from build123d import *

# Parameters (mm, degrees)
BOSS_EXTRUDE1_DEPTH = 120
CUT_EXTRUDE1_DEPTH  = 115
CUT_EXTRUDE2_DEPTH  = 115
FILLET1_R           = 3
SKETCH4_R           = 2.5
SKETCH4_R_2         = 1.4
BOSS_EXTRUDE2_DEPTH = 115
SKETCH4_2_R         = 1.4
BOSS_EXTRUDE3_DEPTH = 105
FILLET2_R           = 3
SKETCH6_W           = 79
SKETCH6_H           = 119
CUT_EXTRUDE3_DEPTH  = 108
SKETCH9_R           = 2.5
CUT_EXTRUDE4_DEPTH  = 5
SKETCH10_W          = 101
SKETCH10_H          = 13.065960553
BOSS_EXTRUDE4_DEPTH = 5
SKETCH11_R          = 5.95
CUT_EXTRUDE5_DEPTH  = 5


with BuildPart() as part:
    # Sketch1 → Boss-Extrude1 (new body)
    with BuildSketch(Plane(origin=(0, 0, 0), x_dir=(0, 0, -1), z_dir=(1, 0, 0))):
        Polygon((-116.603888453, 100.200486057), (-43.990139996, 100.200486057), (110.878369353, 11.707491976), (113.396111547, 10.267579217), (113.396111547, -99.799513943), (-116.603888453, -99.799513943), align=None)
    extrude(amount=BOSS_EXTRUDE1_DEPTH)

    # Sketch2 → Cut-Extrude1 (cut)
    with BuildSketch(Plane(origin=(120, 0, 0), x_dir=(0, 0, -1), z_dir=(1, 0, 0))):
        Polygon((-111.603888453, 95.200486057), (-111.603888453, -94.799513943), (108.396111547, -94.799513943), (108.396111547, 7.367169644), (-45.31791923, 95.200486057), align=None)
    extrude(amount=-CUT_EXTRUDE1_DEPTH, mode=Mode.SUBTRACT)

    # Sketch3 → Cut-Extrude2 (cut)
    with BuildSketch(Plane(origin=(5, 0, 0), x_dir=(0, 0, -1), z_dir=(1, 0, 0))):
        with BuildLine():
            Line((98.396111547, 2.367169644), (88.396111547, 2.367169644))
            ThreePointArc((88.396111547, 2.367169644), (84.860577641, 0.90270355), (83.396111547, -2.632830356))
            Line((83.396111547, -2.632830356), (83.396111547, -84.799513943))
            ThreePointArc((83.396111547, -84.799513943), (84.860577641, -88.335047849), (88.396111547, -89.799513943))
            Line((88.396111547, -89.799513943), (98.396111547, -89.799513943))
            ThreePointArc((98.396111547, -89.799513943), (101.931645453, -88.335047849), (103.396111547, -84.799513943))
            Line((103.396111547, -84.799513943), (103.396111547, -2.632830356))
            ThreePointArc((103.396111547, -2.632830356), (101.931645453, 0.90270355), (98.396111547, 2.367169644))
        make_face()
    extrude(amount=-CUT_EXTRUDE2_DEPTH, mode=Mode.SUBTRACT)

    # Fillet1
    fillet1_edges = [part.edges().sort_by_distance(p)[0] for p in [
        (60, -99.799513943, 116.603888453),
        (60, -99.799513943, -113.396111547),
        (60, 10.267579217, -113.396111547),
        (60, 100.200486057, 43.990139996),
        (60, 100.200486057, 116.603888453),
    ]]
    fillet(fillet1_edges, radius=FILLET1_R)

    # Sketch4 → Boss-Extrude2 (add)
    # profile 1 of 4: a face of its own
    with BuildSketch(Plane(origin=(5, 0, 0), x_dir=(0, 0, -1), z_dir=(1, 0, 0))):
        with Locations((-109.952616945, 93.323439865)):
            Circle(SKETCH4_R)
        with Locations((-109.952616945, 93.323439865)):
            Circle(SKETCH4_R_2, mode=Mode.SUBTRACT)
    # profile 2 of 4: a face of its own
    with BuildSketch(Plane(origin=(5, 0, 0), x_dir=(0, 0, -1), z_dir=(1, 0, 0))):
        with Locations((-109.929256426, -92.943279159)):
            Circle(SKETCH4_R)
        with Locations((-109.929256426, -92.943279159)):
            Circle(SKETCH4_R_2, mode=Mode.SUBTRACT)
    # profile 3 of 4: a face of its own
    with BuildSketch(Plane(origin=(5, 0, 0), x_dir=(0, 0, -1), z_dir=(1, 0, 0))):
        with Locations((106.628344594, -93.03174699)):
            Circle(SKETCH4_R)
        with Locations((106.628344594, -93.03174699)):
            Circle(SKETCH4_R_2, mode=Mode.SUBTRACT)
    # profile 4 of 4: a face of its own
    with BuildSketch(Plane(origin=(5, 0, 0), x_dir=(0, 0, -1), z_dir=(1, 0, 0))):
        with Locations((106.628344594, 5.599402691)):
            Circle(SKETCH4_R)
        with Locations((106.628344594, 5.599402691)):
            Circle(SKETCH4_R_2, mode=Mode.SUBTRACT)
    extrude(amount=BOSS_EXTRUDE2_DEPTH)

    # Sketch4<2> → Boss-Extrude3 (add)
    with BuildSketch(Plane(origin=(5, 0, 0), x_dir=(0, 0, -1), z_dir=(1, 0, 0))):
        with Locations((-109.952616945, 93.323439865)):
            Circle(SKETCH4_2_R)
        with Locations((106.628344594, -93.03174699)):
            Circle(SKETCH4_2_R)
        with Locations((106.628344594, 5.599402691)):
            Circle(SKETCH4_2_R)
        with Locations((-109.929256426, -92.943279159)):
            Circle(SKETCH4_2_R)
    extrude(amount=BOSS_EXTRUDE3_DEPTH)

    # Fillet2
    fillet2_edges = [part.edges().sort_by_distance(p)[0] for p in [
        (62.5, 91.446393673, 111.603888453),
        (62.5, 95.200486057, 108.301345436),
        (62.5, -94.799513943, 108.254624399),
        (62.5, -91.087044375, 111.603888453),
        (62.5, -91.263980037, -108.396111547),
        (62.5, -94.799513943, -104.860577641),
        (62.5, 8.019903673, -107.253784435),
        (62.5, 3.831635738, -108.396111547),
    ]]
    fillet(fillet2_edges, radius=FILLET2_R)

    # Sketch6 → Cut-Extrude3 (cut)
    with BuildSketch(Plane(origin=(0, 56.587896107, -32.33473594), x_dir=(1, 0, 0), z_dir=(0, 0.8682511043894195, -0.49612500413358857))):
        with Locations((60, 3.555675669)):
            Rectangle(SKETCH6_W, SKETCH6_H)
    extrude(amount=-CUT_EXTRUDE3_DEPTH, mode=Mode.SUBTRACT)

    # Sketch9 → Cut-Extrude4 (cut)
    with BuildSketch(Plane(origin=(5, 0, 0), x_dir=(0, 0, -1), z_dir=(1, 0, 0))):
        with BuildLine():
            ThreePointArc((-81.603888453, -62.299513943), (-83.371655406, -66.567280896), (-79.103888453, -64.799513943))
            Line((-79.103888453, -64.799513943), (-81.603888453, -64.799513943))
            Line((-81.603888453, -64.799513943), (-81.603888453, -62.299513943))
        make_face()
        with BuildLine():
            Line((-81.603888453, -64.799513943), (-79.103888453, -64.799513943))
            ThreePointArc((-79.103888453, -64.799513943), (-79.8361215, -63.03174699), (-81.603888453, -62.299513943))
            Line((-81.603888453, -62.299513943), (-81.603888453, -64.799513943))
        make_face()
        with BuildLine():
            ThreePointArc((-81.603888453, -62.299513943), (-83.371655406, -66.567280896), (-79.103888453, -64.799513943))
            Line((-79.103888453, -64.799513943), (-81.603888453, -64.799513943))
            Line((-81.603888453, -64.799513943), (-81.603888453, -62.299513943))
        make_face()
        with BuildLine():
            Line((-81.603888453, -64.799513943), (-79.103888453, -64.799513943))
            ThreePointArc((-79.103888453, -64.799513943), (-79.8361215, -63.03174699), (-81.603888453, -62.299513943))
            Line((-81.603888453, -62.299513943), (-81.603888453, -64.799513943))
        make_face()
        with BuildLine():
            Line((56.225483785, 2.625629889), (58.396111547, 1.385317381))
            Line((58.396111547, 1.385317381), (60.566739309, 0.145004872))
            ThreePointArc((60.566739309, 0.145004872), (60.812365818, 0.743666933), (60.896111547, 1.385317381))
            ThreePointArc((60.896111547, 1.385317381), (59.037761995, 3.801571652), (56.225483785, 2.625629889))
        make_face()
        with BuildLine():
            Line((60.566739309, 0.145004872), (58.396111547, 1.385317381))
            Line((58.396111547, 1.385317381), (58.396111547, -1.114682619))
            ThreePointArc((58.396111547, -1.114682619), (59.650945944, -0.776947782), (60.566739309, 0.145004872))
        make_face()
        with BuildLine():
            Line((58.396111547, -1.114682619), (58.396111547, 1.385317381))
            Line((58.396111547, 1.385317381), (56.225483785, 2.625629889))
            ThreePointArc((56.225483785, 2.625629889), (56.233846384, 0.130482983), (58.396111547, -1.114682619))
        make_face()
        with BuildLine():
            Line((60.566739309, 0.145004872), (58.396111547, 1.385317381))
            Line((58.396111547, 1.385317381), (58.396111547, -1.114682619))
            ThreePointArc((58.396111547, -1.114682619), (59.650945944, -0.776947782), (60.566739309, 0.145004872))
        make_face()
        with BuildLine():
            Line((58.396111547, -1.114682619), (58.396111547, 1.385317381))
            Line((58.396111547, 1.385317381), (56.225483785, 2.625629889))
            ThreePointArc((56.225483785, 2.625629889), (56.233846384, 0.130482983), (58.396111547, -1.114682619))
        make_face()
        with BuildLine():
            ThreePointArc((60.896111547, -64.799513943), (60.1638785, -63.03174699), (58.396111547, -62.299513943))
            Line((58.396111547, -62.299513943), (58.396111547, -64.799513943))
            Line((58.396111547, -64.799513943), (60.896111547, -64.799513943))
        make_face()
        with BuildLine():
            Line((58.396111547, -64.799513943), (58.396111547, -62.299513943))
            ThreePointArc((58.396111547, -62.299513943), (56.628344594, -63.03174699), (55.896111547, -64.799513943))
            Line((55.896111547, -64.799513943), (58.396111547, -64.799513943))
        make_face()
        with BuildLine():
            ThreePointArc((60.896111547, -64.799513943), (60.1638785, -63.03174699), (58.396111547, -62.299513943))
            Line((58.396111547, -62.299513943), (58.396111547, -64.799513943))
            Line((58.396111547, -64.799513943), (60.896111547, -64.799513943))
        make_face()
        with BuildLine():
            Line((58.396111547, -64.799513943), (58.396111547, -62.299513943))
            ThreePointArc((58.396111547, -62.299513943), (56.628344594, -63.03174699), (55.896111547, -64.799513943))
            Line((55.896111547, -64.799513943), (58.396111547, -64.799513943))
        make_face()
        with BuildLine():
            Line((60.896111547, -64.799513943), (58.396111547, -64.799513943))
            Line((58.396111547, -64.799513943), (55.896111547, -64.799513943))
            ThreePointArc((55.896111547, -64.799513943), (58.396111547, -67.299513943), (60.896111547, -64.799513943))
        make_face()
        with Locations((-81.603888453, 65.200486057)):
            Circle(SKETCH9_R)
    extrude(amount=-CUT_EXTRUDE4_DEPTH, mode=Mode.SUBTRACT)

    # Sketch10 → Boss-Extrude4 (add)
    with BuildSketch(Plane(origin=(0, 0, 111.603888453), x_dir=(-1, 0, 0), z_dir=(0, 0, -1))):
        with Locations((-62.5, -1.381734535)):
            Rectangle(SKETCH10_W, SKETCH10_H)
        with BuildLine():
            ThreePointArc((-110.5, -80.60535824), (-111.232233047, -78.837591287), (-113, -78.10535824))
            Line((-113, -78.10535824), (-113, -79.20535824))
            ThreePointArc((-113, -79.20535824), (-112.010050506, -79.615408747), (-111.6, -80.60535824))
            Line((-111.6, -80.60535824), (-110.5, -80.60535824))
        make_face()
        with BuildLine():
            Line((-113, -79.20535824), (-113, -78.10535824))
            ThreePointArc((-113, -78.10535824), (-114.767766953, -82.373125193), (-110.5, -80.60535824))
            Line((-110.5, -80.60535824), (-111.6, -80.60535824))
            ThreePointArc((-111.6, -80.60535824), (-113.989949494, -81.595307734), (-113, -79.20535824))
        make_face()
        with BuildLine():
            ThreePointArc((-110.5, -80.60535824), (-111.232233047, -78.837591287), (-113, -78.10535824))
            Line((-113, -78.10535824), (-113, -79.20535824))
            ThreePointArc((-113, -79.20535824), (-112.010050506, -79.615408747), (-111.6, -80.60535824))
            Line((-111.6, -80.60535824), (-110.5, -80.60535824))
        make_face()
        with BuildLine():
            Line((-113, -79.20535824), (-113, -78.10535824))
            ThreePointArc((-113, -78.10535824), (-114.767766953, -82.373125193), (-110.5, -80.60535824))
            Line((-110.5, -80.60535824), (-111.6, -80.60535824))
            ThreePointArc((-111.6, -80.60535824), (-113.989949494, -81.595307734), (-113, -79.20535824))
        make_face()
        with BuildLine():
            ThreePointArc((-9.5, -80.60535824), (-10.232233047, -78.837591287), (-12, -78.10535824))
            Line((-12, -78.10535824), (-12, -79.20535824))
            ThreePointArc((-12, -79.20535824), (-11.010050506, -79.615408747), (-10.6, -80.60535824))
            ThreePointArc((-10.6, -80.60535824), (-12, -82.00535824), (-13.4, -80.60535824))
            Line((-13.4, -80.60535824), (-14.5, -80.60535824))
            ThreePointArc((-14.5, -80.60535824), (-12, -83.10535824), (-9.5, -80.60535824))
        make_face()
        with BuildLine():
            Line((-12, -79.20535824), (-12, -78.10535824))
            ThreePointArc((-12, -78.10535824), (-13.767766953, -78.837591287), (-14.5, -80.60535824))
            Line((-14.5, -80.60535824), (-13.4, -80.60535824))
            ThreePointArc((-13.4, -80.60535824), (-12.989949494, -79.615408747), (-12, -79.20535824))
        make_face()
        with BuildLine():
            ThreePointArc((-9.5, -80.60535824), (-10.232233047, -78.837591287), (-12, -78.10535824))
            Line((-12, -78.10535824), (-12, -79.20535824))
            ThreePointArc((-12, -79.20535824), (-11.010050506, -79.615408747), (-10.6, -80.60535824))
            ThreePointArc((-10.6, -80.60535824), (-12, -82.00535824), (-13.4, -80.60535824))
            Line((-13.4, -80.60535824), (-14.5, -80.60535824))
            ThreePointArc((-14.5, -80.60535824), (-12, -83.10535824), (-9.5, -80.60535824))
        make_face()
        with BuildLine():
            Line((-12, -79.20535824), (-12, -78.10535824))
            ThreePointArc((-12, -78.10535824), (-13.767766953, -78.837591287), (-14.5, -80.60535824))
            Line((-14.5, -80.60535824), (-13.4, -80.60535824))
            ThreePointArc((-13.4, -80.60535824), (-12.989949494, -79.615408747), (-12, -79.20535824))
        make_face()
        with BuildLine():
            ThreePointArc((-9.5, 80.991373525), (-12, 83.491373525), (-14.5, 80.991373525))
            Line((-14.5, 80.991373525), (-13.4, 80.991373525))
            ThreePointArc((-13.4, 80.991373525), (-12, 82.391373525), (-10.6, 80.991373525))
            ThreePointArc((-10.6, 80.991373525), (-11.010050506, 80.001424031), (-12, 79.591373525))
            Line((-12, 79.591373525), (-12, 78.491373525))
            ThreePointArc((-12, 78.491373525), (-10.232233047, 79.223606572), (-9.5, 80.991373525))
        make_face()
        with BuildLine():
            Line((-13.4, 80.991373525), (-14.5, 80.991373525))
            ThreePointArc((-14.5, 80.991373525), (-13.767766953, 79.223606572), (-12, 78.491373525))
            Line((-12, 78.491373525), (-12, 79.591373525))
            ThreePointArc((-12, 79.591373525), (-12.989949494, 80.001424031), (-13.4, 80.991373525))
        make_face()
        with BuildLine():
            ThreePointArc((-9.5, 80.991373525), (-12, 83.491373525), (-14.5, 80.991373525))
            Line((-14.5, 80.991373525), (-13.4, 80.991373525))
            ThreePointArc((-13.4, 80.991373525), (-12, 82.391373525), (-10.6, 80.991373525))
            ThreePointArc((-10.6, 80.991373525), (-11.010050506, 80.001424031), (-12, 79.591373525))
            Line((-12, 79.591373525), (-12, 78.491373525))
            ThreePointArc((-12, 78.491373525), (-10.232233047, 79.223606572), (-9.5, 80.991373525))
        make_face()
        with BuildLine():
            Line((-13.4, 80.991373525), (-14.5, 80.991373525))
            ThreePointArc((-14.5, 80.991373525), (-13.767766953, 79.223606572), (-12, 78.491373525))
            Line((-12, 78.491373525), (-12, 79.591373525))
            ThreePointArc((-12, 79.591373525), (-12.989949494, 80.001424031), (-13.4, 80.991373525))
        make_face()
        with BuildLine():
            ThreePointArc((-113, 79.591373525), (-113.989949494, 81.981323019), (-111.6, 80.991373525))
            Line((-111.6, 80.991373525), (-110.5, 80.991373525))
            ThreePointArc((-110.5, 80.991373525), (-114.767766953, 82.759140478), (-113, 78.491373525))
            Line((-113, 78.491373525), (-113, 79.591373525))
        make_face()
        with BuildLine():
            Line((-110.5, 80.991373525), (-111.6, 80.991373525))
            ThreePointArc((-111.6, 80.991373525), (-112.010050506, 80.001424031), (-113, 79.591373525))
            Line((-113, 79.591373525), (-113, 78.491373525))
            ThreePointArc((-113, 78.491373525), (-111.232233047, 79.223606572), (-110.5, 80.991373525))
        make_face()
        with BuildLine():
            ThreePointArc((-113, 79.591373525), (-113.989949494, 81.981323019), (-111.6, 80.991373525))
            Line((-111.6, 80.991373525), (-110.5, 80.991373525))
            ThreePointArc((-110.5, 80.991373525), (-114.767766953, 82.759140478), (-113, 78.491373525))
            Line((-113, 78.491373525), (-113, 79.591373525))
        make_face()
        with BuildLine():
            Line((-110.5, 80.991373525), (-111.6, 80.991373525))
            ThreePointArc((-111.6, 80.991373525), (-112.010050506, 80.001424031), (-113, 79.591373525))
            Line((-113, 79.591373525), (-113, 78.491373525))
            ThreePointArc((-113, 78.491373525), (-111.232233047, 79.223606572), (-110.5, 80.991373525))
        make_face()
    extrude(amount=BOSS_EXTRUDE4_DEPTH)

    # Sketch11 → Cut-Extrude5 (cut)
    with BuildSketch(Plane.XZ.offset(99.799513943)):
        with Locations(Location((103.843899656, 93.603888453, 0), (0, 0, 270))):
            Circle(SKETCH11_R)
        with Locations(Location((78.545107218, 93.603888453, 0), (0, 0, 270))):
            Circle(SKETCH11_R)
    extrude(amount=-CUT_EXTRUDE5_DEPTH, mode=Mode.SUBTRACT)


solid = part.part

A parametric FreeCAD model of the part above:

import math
import FreeCAD as App
import Part
import Sketcher


def edges_at(feature, points):
    """Names of the edges that pass closest to the given points."""
    edges = feature.Shape.Edges
    near = lambda p: min(range(len(edges)), key=lambda i: edges[i].distToShape(Part.Vertex(*p))[0])
    return sorted({f"Edge{near(p) + 1}" for p in points})


def add_polygon(sketch, points):
    """Adds a closed chain of lines whose ends are joined by coincident constraints."""
    first, n = sketch.GeometryCount, len(points)
    for a, b in zip(points, points[1:] + points[:1]):
        sketch.addGeometry(Part.LineSegment(App.Vector(*a, 0), App.Vector(*b, 0)), False)
    for i in range(n):
        sketch.addConstraint(Sketcher.Constraint("Coincident", first + i, 2, first + (i + 1) % n, 1))

doc = App.newDocument("Part")
body = doc.addObject("PartDesign::Body", "Body")

# Sketch on YZ plane
sketch1 = body.newObject("Sketcher::SketchObject", "Sketch")
sketch1.AttachmentSupport = (doc.getObject("YZ_Plane"), [""])
sketch1.MapMode = "FlatFace"
add_polygon(sketch1, [(100.2, 44), (100.2, 116.6), (-99.8, 116.6), (-99.8, -113.4), (10.3, -113.4), (11.7, -110.9)])  # lines 0-5
sketch1.addConstraint(Sketcher.Constraint("Vertical", 0))
sketch1.addConstraint(Sketcher.Constraint("Horizontal", 1))
sketch1.addConstraint(Sketcher.Constraint("Vertical", 2))
sketch1.addConstraint(Sketcher.Constraint("Horizontal", 3))
sketch1.addConstraint(Sketcher.Constraint("DistanceX", 1, 2, 1, 1, 200.0))
sketch1.addConstraint(Sketcher.Constraint("DistanceY", 2, 2, 2, 1, 230.0))
sketch1.addConstraint(Sketcher.Constraint("DistanceY", 0, 1, 0, 2, 72.613748))
sketch1.addConstraint(Sketcher.Constraint("Distance", 4, 2.900409))
sketch1.addConstraint(Sketcher.Constraint("Distance", 5, 178.368341))
sketch1.addConstraint(Sketcher.Constraint("DistanceY", -1, 1, 0, 2, 116.603888))
sketch1.addConstraint(Sketcher.Constraint("DistanceX", -1, 1, 3, 2, 10.267579))
sketch1.addConstraint(Sketcher.Constraint("DistanceX", -1, 1, 4, 2, 11.707492))
pad1 = body.newObject("PartDesign::Pad", "Pad")
pad1.Profile = sketch1
pad1.Length = 120

# Sketch on YZ plane
sketch2 = body.newObject("Sketcher::SketchObject", "Sketch001")
sketch2.AttachmentSupport = (doc.getObject("YZ_Plane"), [""])
sketch2.MapMode = "FlatFace"
sketch2.AttachmentOffset = App.Placement(App.Vector(0, 0, 120), App.Rotation())
add_polygon(sketch2, [(95, 112), (-95, 112), (-95, -108), (7, -108), (95, 45)])  # lines 0-4
sketch2.addConstraint(Sketcher.Constraint("Horizontal", 0))
sketch2.addConstraint(Sketcher.Constraint("Vertical", 1))
sketch2.addConstraint(Sketcher.Constraint("Horizontal", 2))
sketch2.addConstraint(Sketcher.Constraint("Vertical", 4))
sketch2.addConstraint(Sketcher.Constraint("DistanceX", 0, 2, 0, 1, 190.0))
sketch2.addConstraint(Sketcher.Constraint("DistanceY", 1, 2, 1, 1, 220.0))
sketch2.addConstraint(Sketcher.Constraint("DistanceY", 4, 1, 4, 2, 66.285969))
sketch2.addConstraint(Sketcher.Constraint("Distance", 3, 177.038681))
sketch2.addConstraint(Sketcher.Constraint("DistanceY", -1, 1, 0, 2, 111.603888))
sketch2.addConstraint(Sketcher.Constraint("DistanceX", -1, 1, 2, 2, 7.36717))
pocket1 = body.newObject("PartDesign::Pocket", "Pocket")
pocket1.Profile = sketch2
pocket1.Length = 115

# Sketch on YZ plane
sketch3 = body.newObject("Sketcher::SketchObject", "Sketch002")
sketch3.AttachmentSupport = (doc.getObject("YZ_Plane"), [""])
sketch3.MapMode = "FlatFace"
sketch3.AttachmentOffset = App.Placement(App.Vector(0, 0, 5), App.Rotation())
sketch3.addGeometry(Part.LineSegment(App.Vector(2, -98, 0), App.Vector(2, -88, 0)), False)
sketch3.addGeometry(Part.ArcOfCircle(Part.Circle(App.Vector(-3, -88, 0), App.Vector(0, 0, 1), 5), math.radians(0), math.radians(90)), False)
sketch3.addGeometry(Part.LineSegment(App.Vector(-3, -83, 0), App.Vector(-85, -83, 0)), False)
sketch3.addGeometry(Part.ArcOfCircle(Part.Circle(App.Vector(-85, -88, 0), App.Vector(0, 0, 1), 5), math.radians(90), math.radians(180)), False)
sketch3.addGeometry(Part.LineSegment(App.Vector(-90, -88, 0), App.Vector(-90, -98, 0)), False)
sketch3.addGeometry(Part.ArcOfCircle(Part.Circle(App.Vector(-85, -98, 0), App.Vector(0, 0, 1), 5), math.radians(180), math.radians(270)), False)
sketch3.addGeometry(Part.LineSegment(App.Vector(-85, -103, 0), App.Vector(-3, -103, 0)), False)
sketch3.addGeometry(Part.ArcOfCircle(Part.Circle(App.Vector(-3, -98, 0), App.Vector(0, 0, 1), 5), math.radians(-90), math.radians(0)), False)
sketch3.addConstraint(Sketcher.Constraint("Tangent", 0, 2, 1, 1))
sketch3.addConstraint(Sketcher.Constraint("Tangent", 1, 2, 2, 1))
sketch3.addConstraint(Sketcher.Constraint("Tangent", 2, 2, 3, 1))
sketch3.addConstraint(Sketcher.Constraint("Tangent", 3, 2, 4, 1))
sketch3.addConstraint(Sketcher.Constraint("Tangent", 4, 2, 5, 1))
sketch3.addConstraint(Sketcher.Constraint("Tangent", 5, 2, 6, 1))
sketch3.addConstraint(Sketcher.Constraint("Tangent", 6, 2, 7, 1))
sketch3.addConstraint(Sketcher.Constraint("Tangent", 7, 2, 0, 1))
sketch3.addConstraint(Sketcher.Constraint("Vertical", 0))
sketch3.addConstraint(Sketcher.Constraint("Horizontal", 2))
sketch3.addConstraint(Sketcher.Constraint("Vertical", 4))
sketch3.addConstraint(Sketcher.Constraint("Horizontal", 6))
sketch3.addConstraint(Sketcher.Constraint("Equal", 1, 3))
sketch3.addConstraint(Sketcher.Constraint("Equal", 3, 5))
sketch3.addConstraint(Sketcher.Constraint("Equal", 5, 7))
sketch3.addConstraint(Sketcher.Constraint("Radius", 1, 5.0))
sketch3.addConstraint(Sketcher.Constraint("DistanceY", 0, 1, 0, 2, 10.0))
sketch3.addConstraint(Sketcher.Constraint("DistanceX", 2, 2, 2, 1, 82.166684))
sketch3.addConstraint(Sketcher.Constraint("DistanceX", 1, 3, -1, 1, 2.63283))
sketch3.addConstraint(Sketcher.Constraint("DistanceY", 1, 3, -1, 1, 88.396112))
pocket2 = body.newObject("PartDesign::Pocket", "Pocket001")
pocket2.Profile = sketch3
pocket2.Length = 115
doc.recompute()

fillet = body.newObject("PartDesign::Fillet", "Fillet")
fillet.Base = (pocket2, edges_at(pocket2, [
    (60, -99.8, 116.604),
    (60, -99.8, -113.396),
    (60, 10.268, -113.396),
    (60, 100.2, 43.99),
    (60, 100.2, 116.604),
]))
fillet.Radius = 3

# Sketch on YZ plane
sketch4 = body.newObject("Sketcher::SketchObject", "Sketch003")
sketch4.AttachmentSupport = (doc.getObject("YZ_Plane"), [""])
sketch4.MapMode = "FlatFace"
sketch4.AttachmentOffset = App.Placement(App.Vector(0, 0, 5), App.Rotation())
sketch4.addGeometry(Part.Circle(App.Vector(93.3, 110, 0), App.Vector(0, 0, 1), 2.5), False)
sketch4.addGeometry(Part.Circle(App.Vector(93.3, 110, 0), App.Vector(0, 0, 1), 1.4), False)
sketch4.addGeometry(Part.Circle(App.Vector(-92.9, 109.9, 0), App.Vector(0, 0, 1), 2.5), False)
sketch4.addGeometry(Part.Circle(App.Vector(-92.9, 109.9, 0), App.Vector(0, 0, 1), 1.4), False)
sketch4.addGeometry(Part.Circle(App.Vector(-93, -106.6, 0), App.Vector(0, 0, 1), 2.5), False)
sketch4.addGeometry(Part.Circle(App.Vector(-93, -106.6, 0), App.Vector(0, 0, 1), 1.4), False)
sketch4.addGeometry(Part.Circle(App.Vector(5.6, -106.6, 0), App.Vector(0, 0, 1), 2.5), False)
sketch4.addGeometry(Part.Circle(App.Vector(5.6, -106.6, 0), App.Vector(0, 0, 1), 1.4), False)
sketch4.addConstraint(Sketcher.Constraint("Coincident", 1, 3, 0, 3))
sketch4.addConstraint(Sketcher.Constraint("Coincident", 3, 3, 2, 3))
sketch4.addConstraint(Sketcher.Constraint("Coincident", 5, 3, 4, 3))
sketch4.addConstraint(Sketcher.Constraint("Coincident", 7, 3, 6, 3))
sketch4.addConstraint(Sketcher.Constraint("Equal", 0, 2))
sketch4.addConstraint(Sketcher.Constraint("Equal", 1, 3))
sketch4.addConstraint(Sketcher.Constraint("Equal", 2, 4))
sketch4.addConstraint(Sketcher.Constraint("Equal", 3, 5))
sketch4.addConstraint(Sketcher.Constraint("Equal", 4, 6))
sketch4.addConstraint(Sketcher.Constraint("Equal", 5, 7))
sketch4.addConstraint(Sketcher.Constraint("Horizontal", 5, 3, 6, 3))
sketch4.addConstraint(Sketcher.Constraint("Diameter", 0, 5.0))
sketch4.addConstraint(Sketcher.Constraint("Diameter", 1, 2.8))
sketch4.addConstraint(Sketcher.Constraint("DistanceY", 4, 3, 2, 3, 216.557601))
sketch4.addConstraint(Sketcher.Constraint("DistanceX", -1, 1, 0, 3, 93.32344))
sketch4.addConstraint(Sketcher.Constraint("DistanceX", 2, 3, -1, 1, 92.943279))
sketch4.addConstraint(Sketcher.Constraint("DistanceY", 2, 3, 0, 3, 0.023361))
sketch4.addConstraint(Sketcher.Constraint("DistanceX", 4, 3, 6, 3, 98.63115))
sketch4.addConstraint(Sketcher.Constraint("DistanceX", 2, 3, 6, 3, 98.542682))
sketch4.addConstraint(Sketcher.Constraint("DistanceY", -1, 1, 0, 3, 109.952617))
pad2 = body.newObject("PartDesign::Pad", "Pad001")
pad2.Profile = sketch4
pad2.Length = 115

# Sketch on YZ plane
sketch5 = body.newObject("Sketcher::SketchObject", "Sketch004")
sketch5.AttachmentSupport = (doc.getObject("YZ_Plane"), [""])
sketch5.MapMode = "FlatFace"
sketch5.AttachmentOffset = App.Placement(App.Vector(0, 0, 5), App.Rotation())
sketch5.addGeometry(Part.Circle(App.Vector(93.3, 110, 0), App.Vector(0, 0, 1), 1.4), False)
sketch5.addGeometry(Part.Circle(App.Vector(-93, -106.6, 0), App.Vector(0, 0, 1), 1.4), False)
sketch5.addGeometry(Part.Circle(App.Vector(5.6, -106.6, 0), App.Vector(0, 0, 1), 1.4), False)
sketch5.addGeometry(Part.Circle(App.Vector(-92.9, 109.9, 0), App.Vector(0, 0, 1), 1.4), False)
sketch5.addConstraint(Sketcher.Constraint("Equal", 0, 1))
sketch5.addConstraint(Sketcher.Constraint("Equal", 1, 2))
sketch5.addConstraint(Sketcher.Constraint("Equal", 2, 3))
sketch5.addConstraint(Sketcher.Constraint("Horizontal", 1, 3, 2, 3))
sketch5.addConstraint(Sketcher.Constraint("Diameter", 0, 2.8))
sketch5.addConstraint(Sketcher.Constraint("DistanceY", 1, 3, 3, 3, 216.557601))
sketch5.addConstraint(Sketcher.Constraint("DistanceX", -1, 1, 0, 3, 93.32344))
sketch5.addConstraint(Sketcher.Constraint("DistanceX", 3, 3, -1, 1, 92.943279))
sketch5.addConstraint(Sketcher.Constraint("DistanceY", 1, 3, 0, 3, 216.580962))
sketch5.addConstraint(Sketcher.Constraint("DistanceX", 1, 3, 2, 3, 98.63115))
sketch5.addConstraint(Sketcher.Constraint("DistanceX", 3, 3, 2, 3, 98.542682))
sketch5.addConstraint(Sketcher.Constraint("DistanceY", -1, 1, 0, 3, 109.952617))
pad3 = body.newObject("PartDesign::Pad", "Pad002")
pad3.Profile = sketch5
pad3.Length = 105
doc.recompute()

fillet2 = body.newObject("PartDesign::Fillet", "Fillet001")
fillet2.Base = (pad3, edges_at(pad3, [
    (62.5, 91.446, 111.604),
    (62.5, 95.2, 108.301),
    (62.5, -94.8, 108.255),
    (62.5, -91.087, 111.604),
    (62.5, -91.264, -108.396),
    (62.5, -94.8, -104.861),
    (62.5, 8.02, -107.254),
    (62.5, 3.832, -108.396),
]))
fillet2.Radius = 3

# Sketch on an angled plane
sketch6 = body.newObject("Sketcher::SketchObject", "Sketch005")
sketch6.Placement = App.Placement(App.Vector(0, 56.587896, -32.334736), App.Rotation(App.Vector(1, 0, 0), App.Vector(0, -0.496125004, -0.868251104), App.Vector(0, 0.868251104, -0.496125004), "ZXY"))
add_polygon(sketch6, [(20, 63), (20, -56), (100, -56), (100, 63)])  # lines 0-3
sketch6.addConstraint(Sketcher.Constraint("Vertical", 0))
sketch6.addConstraint(Sketcher.Constraint("Horizontal", 1))
sketch6.addConstraint(Sketcher.Constraint("Vertical", 2))
sketch6.addConstraint(Sketcher.Constraint("Horizontal", 3))
sketch6.addConstraint(Sketcher.Constraint("DistanceX", 1, 1, 1, 2, 79.0))
sketch6.addConstraint(Sketcher.Constraint("DistanceY", 0, 2, 0, 1, 119.0))
sketch6.addConstraint(Sketcher.Constraint("DistanceX", -1, 1, 0, 2, 20.5))
sketch6.addConstraint(Sketcher.Constraint("DistanceY", 0, 2, -1, 1, 55.944324))
pocket3 = body.newObject("PartDesign::Pocket", "Pocket002")
pocket3.Profile = sketch6
pocket3.Length = 108

# Sketch on YZ plane
sketch7 = body.newObject("Sketcher::SketchObject", "Sketch006")
sketch7.AttachmentSupport = (doc.getObject("YZ_Plane"), [""])
sketch7.MapMode = "FlatFace"
sketch7.AttachmentOffset = App.Placement(App.Vector(0, 0, 5), App.Rotation())
sketch7.addGeometry(Part.ArcOfCircle(Part.Circle(App.Vector(-64.8, 81.6, 0), App.Vector(0, 0, 1), 2.5), math.radians(0), math.radians(270)), False)
sketch7.addGeometry(Part.ArcOfCircle(Part.Circle(App.Vector(-64.8, 81.6, 0), App.Vector(0, 0, 1), 2.5), math.radians(-90), math.radians(0)), False)
sketch7.addGeometry(Part.ArcOfCircle(Part.Circle(App.Vector(1.4, -58.4, 0), App.Vector(0, 0, 1), 2.5), math.radians(-90), math.radians(60)), False)
sketch7.addGeometry(Part.ArcOfCircle(Part.Circle(App.Vector(1.4, -58.4, 0), App.Vector(0, 0, 1), 2.5), math.radians(60), math.radians(180)), False)
sketch7.addGeometry(Part.ArcOfCircle(Part.Circle(App.Vector(1.4, -58.4, 0), App.Vector(0, 0, 1), 2.5), math.radians(-180), math.radians(-120)), False)
sketch7.addGeometry(Part.ArcOfCircle(Part.Circle(App.Vector(1.4, -58.4, 0), App.Vector(0, 0, 1), 2.5), math.radians(-120), math.radians(-90)), False)
sketch7.addGeometry(Part.ArcOfCircle(Part.Circle(App.Vector(-64.8, -58.4, 0), App.Vector(0, 0, 1), 2.5), math.radians(-90), math.radians(0)), False)
sketch7.addGeometry(Part.ArcOfCircle(Part.Circle(App.Vector(-64.8, -58.4, 0), App.Vector(0, 0, 1), 2.5), math.radians(0), math.radians(90)), False)
sketch7.addGeometry(Part.ArcOfCircle(Part.Circle(App.Vector(-64.8, -58.4, 0), App.Vector(0, 0, 1), 2.5), math.radians(90), math.radians(270)), False)
sketch7.addGeometry(Part.Circle(App.Vector(65.2, 81.6, 0), App.Vector(0, 0, 1), 2.5), False)
sketch7.addConstraint(Sketcher.Constraint("Tangent", 0, 1, 1, 2))
sketch7.addConstraint(Sketcher.Constraint("Coincident", 1, 1, 0, 2))
sketch7.addConstraint(Sketcher.Constraint("Tangent", 2, 2, 3, 1))
sketch7.addConstraint(Sketcher.Constraint("Tangent", 3, 2, 4, 1))
sketch7.addConstraint(Sketcher.Constraint("Tangent", 4, 2, 5, 1))
sketch7.addConstraint(Sketcher.Constraint("Tangent", 5, 2, 2, 1))
sketch7.addConstraint(Sketcher.Constraint("Tangent", 6, 2, 7, 1))
sketch7.addConstraint(Sketcher.Constraint("Tangent", 7, 2, 8, 1))
sketch7.addConstraint(Sketcher.Constraint("Tangent", 8, 2, 6, 1))
sketch7.addConstraint(Sketcher.Constraint("Equal", 1, 2))
sketch7.addConstraint(Sketcher.Constraint("Equal", 2, 3))
sketch7.addConstraint(Sketcher.Constraint("Equal", 5, 6))
sketch7.addConstraint(Sketcher.Constraint("Equal", 8, 9))
sketch7.addConstraint(Sketcher.Constraint("Horizontal", 5, 3, 6, 3))
sketch7.addConstraint(Sketcher.Constraint("Horizontal", 1, 3, 9, 3))
sketch7.addConstraint(Sketcher.Constraint("Horizontal", 9, 3, 0, 1))
sketch7.addConstraint(Sketcher.Constraint("Horizontal", 8, 3, 3, 2))
sketch7.addConstraint(Sketcher.Constraint("Horizontal", 3, 2, 6, 2))
sketch7.addConstraint(Sketcher.Constraint("Vertical", 1, 3, 6, 3))
sketch7.addConstraint(Sketcher.Constraint("Vertical", 8, 3, 1, 1))
sketch7.addConstraint(Sketcher.Constraint("Vertical", 4, 3, 5, 2))
sketch7.addConstraint(Sketcher.Constraint("Vertical", 1, 1, 7, 2))
sketch7.addConstraint(Sketcher.Constraint("Vertical", 7, 2, 8, 2))
sketch7.addConstraint(Sketcher.Constraint("Diameter", 9, 5.0))
sketch7.addConstraint(Sketcher.Constraint("DistanceY", 2, 3, 0, 3, 140.0))
sketch7.addConstraint(Sketcher.Constraint("DistanceX", 0, 3, 9, 3, 130.0))
sketch7.addConstraint(Sketcher.Constraint("DistanceY", -1, 1, 0, 3, 81.603888))
sketch7.addConstraint(Sketcher.Constraint("DistanceX", -1, 1, 2, 2, 2.62563))
sketch7.addConstraint(Sketcher.Constraint("DistanceY", 4, 2, -1, 1, 60.566739))
sketch7.addConstraint(Sketcher.Constraint("DistanceX", 0, 3, 2, 3, 66.184831))
sketch7.addConstraint(Sketcher.Constraint("DistanceX", 0, 3, -1, 1, 64.799514))
pocket4 = body.newObject("PartDesign::Pocket", "Pocket003")
pocket4.Profile = sketch7
pocket4.Length = 5

# Sketch on XY plane
sketch8 = body.newObject("Sketcher::SketchObject", "Sketch007")
sketch8.AttachmentSupport = (doc.getObject("XY_Plane"), [""])
sketch8.MapMode = "FlatFace"
sketch8.AttachmentOffset = App.Placement(App.Vector(0, 0, 111.603888), App.Rotation())
add_polygon(sketch8, [(113, 5.2), (113, -7.9), (12, -7.9), (12, 5.2)])  # lines 0-3
sketch8.addGeometry(Part.ArcOfCircle(Part.Circle(App.Vector(113, -80.6, 0), App.Vector(0, 0, 1), 2.5), math.radians(90), math.radians(180)), False)  # 4
sketch8.addGeometry(Part.ArcOfCircle(Part.Circle(App.Vector(113, -80.6, 0), App.Vector(0, 0, 1), 2.5), math.radians(180), math.radians(450)), False)  # 5
sketch8.addGeometry(Part.ArcOfCircle(Part.Circle(App.Vector(113, -80.6, 0), App.Vector(0, 0, 1), 1.4), math.radians(90), math.radians(180)), False)  # 6
sketch8.addGeometry(Part.ArcOfCircle(Part.Circle(App.Vector(113, -80.6, 0), App.Vector(0, 0, 1), 1.4), math.radians(180), math.radians(450)), False)  # 7
sketch8.addGeometry(Part.ArcOfCircle(Part.Circle(App.Vector(12, -80.6, 0), App.Vector(0, 0, 1), 2.5), math.radians(90), math.radians(180)), False)  # 8
sketch8.addGeometry(Part.ArcOfCircle(Part.Circle(App.Vector(12, -80.6, 0), App.Vector(0, 0, 1), 2.5), math.radians(0), math.radians(90)), False)  # 9
sketch8.addGeometry(Part.ArcOfCircle(Part.Circle(App.Vector(12, -80.6, 0), App.Vector(0, 0, 1), 2.5), math.radians(180), math.radians(360)), False)  # 10
sketch8.addGeometry(Part.ArcOfCircle(Part.Circle(App.Vector(12, -80.6, 0), App.Vector(0, 0, 1), 1.4), math.radians(180), math.radians(360)), False)  # 11
sketch8.addGeometry(Part.ArcOfCircle(Part.Circle(App.Vector(12, -80.6, 0), App.Vector(0, 0, 1), 1.4), math.radians(0), math.radians(90)), False)  # 12
sketch8.addGeometry(Part.ArcOfCircle(Part.Circle(App.Vector(12, -80.6, 0), App.Vector(0, 0, 1), 1.4), math.radians(90), math.radians(180)), False)  # 13
sketch8.addGeometry(Part.ArcOfCircle(Part.Circle(App.Vector(12, 81, 0), App.Vector(0, 0, 1), 2.5), math.radians(0), math.radians(180)), False)  # 14
sketch8.addGeometry(Part.ArcOfCircle(Part.Circle(App.Vector(12, 81, 0), App.Vector(0, 0, 1), 2.5), math.radians(-90), math.radians(0)), False)  # 15
sketch8.addGeometry(Part.ArcOfCircle(Part.Circle(App.Vector(12, 81, 0), App.Vector(0, 0, 1), 2.5), math.radians(180), math.radians(270)), False)  # 16
sketch8.addGeometry(Part.ArcOfCircle(Part.Circle(App.Vector(12, 81, 0), App.Vector(0, 0, 1), 1.4), math.radians(180), math.radians(270)), False)  # 17
sketch8.addGeometry(Part.ArcOfCircle(Part.Circle(App.Vector(12, 81, 0), App.Vector(0, 0, 1), 1.4), math.radians(-90), math.radians(0)), False)  # 18
sketch8.addGeometry(Part.ArcOfCircle(Part.Circle(App.Vector(12, 81, 0), App.Vector(0, 0, 1), 1.4), math.radians(0), math.radians(180)), False)  # 19
sketch8.addGeometry(Part.ArcOfCircle(Part.Circle(App.Vector(113, 81, 0), App.Vector(0, 0, 1), 2.5), math.radians(-90), math.radians(180)), False)  # 20
sketch8.addGeometry(Part.ArcOfCircle(Part.Circle(App.Vector(113, 81, 0), App.Vector(0, 0, 1), 2.5), math.radians(180), math.radians(270)), False)  # 21
sketch8.addGeometry(Part.ArcOfCircle(Part.Circle(App.Vector(113, 81, 0), App.Vector(0, 0, 1), 1.4), math.radians(-90), math.radians(180)), False)  # 22
sketch8.addGeometry(Part.ArcOfCircle(Part.Circle(App.Vector(113, 81, 0), App.Vector(0, 0, 1), 1.4), math.radians(180), math.radians(270)), False)  # 23
sketch8.addConstraint(Sketcher.Constraint("Tangent", 4, 1, 5, 2))
sketch8.addConstraint(Sketcher.Constraint("Coincident", 5, 1, 4, 2))
sketch8.addConstraint(Sketcher.Constraint("Tangent", 6, 1, 7, 2))
sketch8.addConstraint(Sketcher.Constraint("Coincident", 7, 1, 6, 2))
sketch8.addConstraint(Sketcher.Constraint("Tangent", 8, 1, 9, 2))
sketch8.addConstraint(Sketcher.Constraint("Tangent", 9, 1, 10, 2))
sketch8.addConstraint(Sketcher.Constraint("Tangent", 10, 1, 8, 2))
sketch8.addConstraint(Sketcher.Constraint("Tangent", 11, 2, 12, 1))
sketch8.addConstraint(Sketcher.Constraint("Tangent", 12, 2, 13, 1))
sketch8.addConstraint(Sketcher.Constraint("Tangent", 13, 2, 11, 1))
sketch8.addConstraint(Sketcher.Constraint("Tangent", 14, 1, 15, 2))
sketch8.addConstraint(Sketcher.Constraint("Tangent", 15, 1, 16, 2))
sketch8.addConstraint(Sketcher.Constraint("Tangent", 16, 1, 14, 2))
sketch8.addConstraint(Sketcher.Constraint("Tangent", 17, 2, 18, 1))
sketch8.addConstraint(Sketcher.Constraint("Tangent", 18, 2, 19, 1))
sketch8.addConstraint(Sketcher.Constraint("Tangent", 19, 2, 17, 1))
sketch8.addConstraint(Sketcher.Constraint("Tangent", 20, 1, 21, 2))
sketch8.addConstraint(Sketcher.Constraint("Coincident", 21, 1, 20, 2))
sketch8.addConstraint(Sketcher.Constraint("Tangent", 22, 1, 23, 2))
sketch8.addConstraint(Sketcher.Constraint("Coincident", 23, 1, 22, 2))
sketch8.addConstraint(Sketcher.Constraint("Vertical", 0))
sketch8.addConstraint(Sketcher.Constraint("Horizontal", 1))
sketch8.addConstraint(Sketcher.Constraint("Vertical", 2))
sketch8.addConstraint(Sketcher.Constraint("Horizontal", 3))
sketch8.addConstraint(Sketcher.Constraint("Coincident", 6, 3, 4, 3))
sketch8.addConstraint(Sketcher.Constraint("Coincident", 11, 3, 8, 3))
sketch8.addConstraint(Sketcher.Constraint("Coincident", 17, 3, 14, 3))
sketch8.addConstraint(Sketcher.Constraint("Coincident", 22, 3, 20, 3))
sketch8.addConstraint(Sketcher.Constraint("Equal", 5, 8))
sketch8.addConstraint(Sketcher.Constraint("Equal", 7, 11))
sketch8.addConstraint(Sketcher.Constraint("Equal", 10, 14))
sketch8.addConstraint(Sketcher.Constraint("Equal", 13, 17))
sketch8.addConstraint(Sketcher.Constraint("Equal", 16, 20))
sketch8.addConstraint(Sketcher.Constraint("Equal", 19, 22))
sketch8.addConstraint(Sketcher.Constraint("Horizontal", 7, 3, 8, 3))
sketch8.addConstraint(Sketcher.Constraint("Horizontal", 19, 3, 20, 3))
sketch8.addConstraint(Sketcher.Constraint("Horizontal", 13, 3, 5, 1))
sketch8.addConstraint(Sketcher.Constraint("Horizontal", 5, 1, 7, 1))
sketch8.addConstraint(Sketcher.Constraint("Horizontal", 7, 1, 9, 1))
sketch8.addConstraint(Sketcher.Constraint("Horizontal", 9, 1, 10, 1))
sketch8.addConstraint(Sketcher.Constraint("Horizontal", 10, 1, 11, 2))
sketch8.addConstraint(Sketcher.Constraint("Horizontal", 11, 2, 13, 2))
sketch8.addConstraint(Sketcher.Constraint("Horizontal", 23, 3, 14, 1))
sketch8.addConstraint(Sketcher.Constraint("Horizontal", 14, 1, 16, 1))
sketch8.addConstraint(Sketcher.Constraint("Horizontal", 16, 1, 18, 2))
sketch8.addConstraint(Sketcher.Constraint("Horizontal", 18, 2, 19, 2))
sketch8.addConstraint(Sketcher.Constraint("Horizontal", 19, 2, 21, 1))
sketch8.addConstraint(Sketcher.Constraint("Horizontal", 21, 1, 23, 1))
sketch8.addConstraint(Sketcher.Constraint("Vertical", 13, 3, 14, 3))
sketch8.addConstraint(Sketcher.Constraint("Vertical", 7, 3, 20, 3))
sketch8.addConstraint(Sketcher.Constraint("Vertical", 23, 3, 0, 2))
sketch8.addConstraint(Sketcher.Constraint("Vertical", 19, 3, 1, 2))
sketch8.addConstraint(Sketcher.Constraint("Vertical", 3, 2, 4, 1))
sketch8.addConstraint(Sketcher.Constraint("Vertical", 4, 1, 6, 1))
sketch8.addConstraint(Sketcher.Constraint("Vertical", 2, 2, 8, 1))
sketch8.addConstraint(Sketcher.Constraint("Vertical", 8, 1, 12, 2))
sketch8.addConstraint(Sketcher.Constraint("Vertical", 12, 2, 15, 1))
sketch8.addConstraint(Sketcher.Constraint("Vertical", 15, 1, 17, 2))
sketch8.addConstraint(Sketcher.Constraint("Vertical", 6, 1, 20, 1))
sketch8.addConstraint(Sketcher.Constraint("Vertical", 20, 1, 22, 1))
sketch8.addConstraint(Sketcher.Constraint("Radius", 4, 2.5))
sketch8.addConstraint(Sketcher.Constraint("Radius", 6, 1.4))
sketch8.addConstraint(Sketcher.Constraint("DistanceX", 1, 2, 1, 1, 101.0))
sketch8.addConstraint(Sketcher.Constraint("DistanceX", -1, 1, 4, 3, 113.0))
sketch8.addConstraint(Sketcher.Constraint("DistanceY", 0, 2, 0, 1, 13.065961))
sketch8.addConstraint(Sketcher.Constraint("DistanceY", 4, 3, -1, 1, 80.605358))
sketch8.addConstraint(Sketcher.Constraint("DistanceY", 8, 3, 14, 3, 161.596732))
sketch8.addConstraint(Sketcher.Constraint("DistanceY", 0, 2, 23, 3, 88.906088))
pad4 = body.newObject("PartDesign::Pad", "Pad003")
pad4.Profile = sketch8
pad4.Length = 5
pad4.Reversed = True

# Sketch on XZ plane
sketch9 = body.newObject("Sketcher::SketchObject", "Sketch008")
sketch9.AttachmentSupport = (doc.getObject("XZ_Plane"), [""])
sketch9.MapMode = "FlatFace"
sketch9.AttachmentOffset = App.Placement(App.Vector(0, 0, 99.799514), App.Rotation())
sketch9.addGeometry(Part.Circle(App.Vector(104, 94, 0), App.Vector(0, 0, 1), 6), False)
sketch9.addGeometry(Part.Circle(App.Vector(79, 94, 0), App.Vector(0, 0, 1), 6), False)
sketch9.addConstraint(Sketcher.Constraint("Equal", 0, 1))
sketch9.addConstraint(Sketcher.Constraint("Horizontal", 0, 3, 1, 3))
sketch9.addConstraint(Sketcher.Constraint("Diameter", 0, 11.9))
sketch9.addConstraint(Sketcher.Constraint("DistanceX", -1, 1, 0, 3, 103.8439))
sketch9.addConstraint(Sketcher.Constraint("DistanceY", -1, 1, 0, 3, 93.603888))
sketch9.addConstraint(Sketcher.Constraint("DistanceX", -1, 1, 1, 3, 78.545107))
pocket5 = body.newObject("PartDesign::Pocket", "Pocket004")
pocket5.Profile = sketch9
pocket5.Length = 5

doc.recompute()
